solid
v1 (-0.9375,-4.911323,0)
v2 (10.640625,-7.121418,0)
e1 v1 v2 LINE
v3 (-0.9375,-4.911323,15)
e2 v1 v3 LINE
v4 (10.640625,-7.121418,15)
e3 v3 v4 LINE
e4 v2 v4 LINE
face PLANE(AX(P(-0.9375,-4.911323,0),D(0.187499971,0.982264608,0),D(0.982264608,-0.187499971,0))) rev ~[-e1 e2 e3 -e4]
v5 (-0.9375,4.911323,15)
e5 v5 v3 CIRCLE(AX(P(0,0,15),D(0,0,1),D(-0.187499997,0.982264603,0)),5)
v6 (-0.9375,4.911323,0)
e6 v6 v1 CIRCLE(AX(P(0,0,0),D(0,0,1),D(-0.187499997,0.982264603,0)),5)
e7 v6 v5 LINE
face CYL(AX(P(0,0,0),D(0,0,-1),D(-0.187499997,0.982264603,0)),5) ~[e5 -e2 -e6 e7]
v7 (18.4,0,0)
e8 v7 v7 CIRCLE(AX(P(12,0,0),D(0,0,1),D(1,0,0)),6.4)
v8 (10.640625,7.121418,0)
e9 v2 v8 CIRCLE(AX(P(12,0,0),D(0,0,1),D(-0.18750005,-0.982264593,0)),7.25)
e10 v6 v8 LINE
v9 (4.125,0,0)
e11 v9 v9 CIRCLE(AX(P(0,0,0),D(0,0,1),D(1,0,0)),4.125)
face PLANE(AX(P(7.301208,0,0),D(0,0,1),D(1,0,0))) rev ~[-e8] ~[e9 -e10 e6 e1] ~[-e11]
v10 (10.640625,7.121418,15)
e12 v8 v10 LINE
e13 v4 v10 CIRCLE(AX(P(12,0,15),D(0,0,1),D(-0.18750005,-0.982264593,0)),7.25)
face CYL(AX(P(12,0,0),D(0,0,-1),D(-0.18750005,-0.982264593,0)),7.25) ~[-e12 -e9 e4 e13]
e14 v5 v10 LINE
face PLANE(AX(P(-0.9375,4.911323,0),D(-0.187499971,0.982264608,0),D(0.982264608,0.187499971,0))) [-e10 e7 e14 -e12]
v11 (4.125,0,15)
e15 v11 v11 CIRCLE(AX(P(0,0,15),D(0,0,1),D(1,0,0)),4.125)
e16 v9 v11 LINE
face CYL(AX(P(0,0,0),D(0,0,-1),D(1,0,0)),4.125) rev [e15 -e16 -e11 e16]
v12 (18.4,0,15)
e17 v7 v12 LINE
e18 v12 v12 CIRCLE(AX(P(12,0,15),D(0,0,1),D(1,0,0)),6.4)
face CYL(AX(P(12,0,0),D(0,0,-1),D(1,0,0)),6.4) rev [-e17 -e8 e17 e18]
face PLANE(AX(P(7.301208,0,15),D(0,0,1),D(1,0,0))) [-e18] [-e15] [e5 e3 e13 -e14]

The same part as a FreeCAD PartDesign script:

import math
import FreeCAD as App
import Part
import Sketcher

doc = App.newDocument("Part")
body = doc.addObject("PartDesign::Body", "Body")

# Sketch on XY plane
sketch1 = body.newObject("Sketcher::SketchObject", "Sketch")
sketch1.AttachmentSupport = (doc.getObject("XY_Plane"), [""])
sketch1.MapMode = "FlatFace"
sketch1.addGeometry([
    Part.ArcOfCircle(Part.Circle(App.Vector(0, 0, 0), App.Vector(0, 0, 1), 5), math.radians(100.806923), math.radians(259.193077)),  # 0
    Part.LineSegment(App.Vector(-0.9375, -4.911323, 0), App.Vector(10.640625, -7.121418, 0)),  # 1
    Part.ArcOfCircle(Part.Circle(App.Vector(12, 0, 0), App.Vector(0, 0, 1), 7.25), math.radians(-100.806926), math.radians(100.806926)),  # 2
    Part.LineSegment(App.Vector(10.640625, 7.121418, 0), App.Vector(-0.9375, 4.911323, 0)),  # 3
    Part.Circle(App.Vector(0, 0, 0), App.Vector(0, 0, 1), 4.125),  # 4
    Part.Circle(App.Vector(12, 0, 0), App.Vector(0, 0, 1), 6.4),  # 5
], False)
sketch1.addConstraint([
    Sketcher.Constraint("Tangent", 0, 2, 1, 1),
    Sketcher.Constraint("Tangent", 1, 2, 2, 1),
    Sketcher.Constraint("Tangent", 2, 2, 3, 1),
    Sketcher.Constraint("Tangent", 3, 2, 0, 1),
    Sketcher.Constraint("Coincident", 0, 3, -1, 1),
    Sketcher.Constraint("Coincident", 4, 3, -1, 1),
    Sketcher.Constraint("Coincident", 5, 3, 2, 3),
    Sketcher.Constraint("PointOnObject", 2, 3, -1),
    Sketcher.Constraint("Radius", 0, 5.0),
    Sketcher.Constraint("Diameter", 5, 12.8),
    Sketcher.Constraint("Diameter", 4, 8.25),
    Sketcher.Constraint("Radius", 2, 7.25),
    Sketcher.Constraint("DistanceX", -1, 1, 2, 3, 12.0),
])
pad1 = body.newObject("PartDesign::Pad", "Pad")
pad1.Profile = sketch1
pad1.Length = 15

doc.recompute()
